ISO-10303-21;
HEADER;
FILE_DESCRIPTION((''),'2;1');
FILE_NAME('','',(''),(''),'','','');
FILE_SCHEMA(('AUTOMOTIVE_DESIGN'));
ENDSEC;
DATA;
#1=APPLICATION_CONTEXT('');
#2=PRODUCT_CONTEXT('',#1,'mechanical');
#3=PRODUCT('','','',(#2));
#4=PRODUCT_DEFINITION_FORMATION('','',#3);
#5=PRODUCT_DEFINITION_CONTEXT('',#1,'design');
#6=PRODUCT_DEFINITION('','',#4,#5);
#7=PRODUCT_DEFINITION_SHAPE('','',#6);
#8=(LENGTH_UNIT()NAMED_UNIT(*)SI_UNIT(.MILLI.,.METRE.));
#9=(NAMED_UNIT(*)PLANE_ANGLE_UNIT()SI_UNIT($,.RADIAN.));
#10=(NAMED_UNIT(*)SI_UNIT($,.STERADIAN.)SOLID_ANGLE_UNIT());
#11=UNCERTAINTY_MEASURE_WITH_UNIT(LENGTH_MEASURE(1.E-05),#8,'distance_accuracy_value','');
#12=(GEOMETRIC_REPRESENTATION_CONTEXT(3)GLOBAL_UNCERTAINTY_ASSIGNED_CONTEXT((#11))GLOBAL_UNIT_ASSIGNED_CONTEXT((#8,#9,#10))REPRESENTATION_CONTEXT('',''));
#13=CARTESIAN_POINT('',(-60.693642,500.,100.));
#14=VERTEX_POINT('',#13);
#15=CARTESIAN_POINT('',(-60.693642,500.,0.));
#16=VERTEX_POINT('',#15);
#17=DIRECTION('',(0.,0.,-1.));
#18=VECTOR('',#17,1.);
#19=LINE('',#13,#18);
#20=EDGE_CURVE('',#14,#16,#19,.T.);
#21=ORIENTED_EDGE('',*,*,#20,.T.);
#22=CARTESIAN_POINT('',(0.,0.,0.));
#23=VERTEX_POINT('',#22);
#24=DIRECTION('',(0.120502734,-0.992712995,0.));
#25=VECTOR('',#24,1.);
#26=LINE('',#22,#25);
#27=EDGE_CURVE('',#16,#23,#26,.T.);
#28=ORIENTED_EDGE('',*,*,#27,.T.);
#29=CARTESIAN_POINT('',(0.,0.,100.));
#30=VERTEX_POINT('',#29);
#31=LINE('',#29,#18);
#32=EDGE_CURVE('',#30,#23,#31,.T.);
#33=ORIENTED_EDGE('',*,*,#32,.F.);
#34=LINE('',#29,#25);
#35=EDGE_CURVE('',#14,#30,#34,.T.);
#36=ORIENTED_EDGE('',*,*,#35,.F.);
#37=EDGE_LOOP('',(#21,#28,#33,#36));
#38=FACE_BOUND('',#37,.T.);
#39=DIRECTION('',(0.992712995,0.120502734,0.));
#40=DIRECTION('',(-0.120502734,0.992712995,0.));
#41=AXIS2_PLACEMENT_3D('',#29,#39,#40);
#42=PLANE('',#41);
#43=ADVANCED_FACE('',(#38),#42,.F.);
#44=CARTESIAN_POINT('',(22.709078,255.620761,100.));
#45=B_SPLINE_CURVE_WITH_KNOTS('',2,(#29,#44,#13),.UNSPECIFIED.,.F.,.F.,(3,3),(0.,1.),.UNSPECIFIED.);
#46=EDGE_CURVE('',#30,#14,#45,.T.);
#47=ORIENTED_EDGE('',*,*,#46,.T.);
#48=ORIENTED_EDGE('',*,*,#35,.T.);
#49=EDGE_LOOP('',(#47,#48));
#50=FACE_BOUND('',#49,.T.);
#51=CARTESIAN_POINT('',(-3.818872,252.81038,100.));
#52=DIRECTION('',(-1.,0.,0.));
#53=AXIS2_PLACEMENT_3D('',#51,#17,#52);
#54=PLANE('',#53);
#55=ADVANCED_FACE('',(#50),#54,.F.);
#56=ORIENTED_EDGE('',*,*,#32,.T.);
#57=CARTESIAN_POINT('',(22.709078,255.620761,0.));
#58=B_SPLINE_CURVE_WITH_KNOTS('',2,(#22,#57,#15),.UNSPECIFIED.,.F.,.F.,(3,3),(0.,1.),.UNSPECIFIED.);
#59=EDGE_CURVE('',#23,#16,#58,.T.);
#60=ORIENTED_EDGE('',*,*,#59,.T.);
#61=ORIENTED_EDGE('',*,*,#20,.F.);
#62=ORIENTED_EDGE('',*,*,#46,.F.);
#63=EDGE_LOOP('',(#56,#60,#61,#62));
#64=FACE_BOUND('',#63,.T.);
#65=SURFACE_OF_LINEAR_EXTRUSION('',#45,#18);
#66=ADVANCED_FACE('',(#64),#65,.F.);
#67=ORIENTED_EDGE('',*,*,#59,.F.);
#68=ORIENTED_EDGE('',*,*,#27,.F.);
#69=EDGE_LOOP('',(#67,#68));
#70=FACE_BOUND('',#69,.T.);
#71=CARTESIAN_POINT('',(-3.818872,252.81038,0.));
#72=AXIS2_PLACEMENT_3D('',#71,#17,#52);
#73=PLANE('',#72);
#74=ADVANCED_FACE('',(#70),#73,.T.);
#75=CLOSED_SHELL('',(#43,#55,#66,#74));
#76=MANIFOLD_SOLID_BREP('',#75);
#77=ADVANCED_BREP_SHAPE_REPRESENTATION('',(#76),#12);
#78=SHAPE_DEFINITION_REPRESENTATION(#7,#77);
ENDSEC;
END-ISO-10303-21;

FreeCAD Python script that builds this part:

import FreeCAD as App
import Part
import Sketcher

V = App.Vector

doc = App.newDocument("Part")
params = doc.addObject("Spreadsheet::Sheet", "Params")
for row, (alias, value) in enumerate([
    ("pad1_length", "100 mm"),
], start=1):
    params.set(f"A{row}", alias)
    params.set(f"B{row}", "=" + value)
    params.setAlias(f"B{row}", alias)

body = doc.addObject("PartDesign::Body", "Body")

sketch1 = body.newObject("Sketcher::SketchObject", "Sketch")
sketch1.AttachmentSupport = (doc.getObject("XY_Plane"), [""])
sketch1.MapMode = "FlatFace"
sketch1.addGeometry([
    Part.LineSegment(V(-60.693642, 500, 0), V(0, 0, 0)),
    Part.BSplineCurve([V(0, 0, 0), V(22.709078, 255.620761, 0), V(-60.693642, 500, 0)], [3, 3], [0, 1], False, 2, [1, 1, 1], False),
], False)
sketch1.addConstraint([
    Sketcher.Constraint("Block", 1),
    Sketcher.Constraint("Coincident", 0, 1, 1, 2),
    Sketcher.Constraint("Coincident", 1, 1, 0, 2),
])
pad1 = body.newObject("PartDesign::Pad", "Pad")
pad1.Profile = sketch1
pad1.setExpression("Length", "Params.pad1_length")

doc.recompute()
